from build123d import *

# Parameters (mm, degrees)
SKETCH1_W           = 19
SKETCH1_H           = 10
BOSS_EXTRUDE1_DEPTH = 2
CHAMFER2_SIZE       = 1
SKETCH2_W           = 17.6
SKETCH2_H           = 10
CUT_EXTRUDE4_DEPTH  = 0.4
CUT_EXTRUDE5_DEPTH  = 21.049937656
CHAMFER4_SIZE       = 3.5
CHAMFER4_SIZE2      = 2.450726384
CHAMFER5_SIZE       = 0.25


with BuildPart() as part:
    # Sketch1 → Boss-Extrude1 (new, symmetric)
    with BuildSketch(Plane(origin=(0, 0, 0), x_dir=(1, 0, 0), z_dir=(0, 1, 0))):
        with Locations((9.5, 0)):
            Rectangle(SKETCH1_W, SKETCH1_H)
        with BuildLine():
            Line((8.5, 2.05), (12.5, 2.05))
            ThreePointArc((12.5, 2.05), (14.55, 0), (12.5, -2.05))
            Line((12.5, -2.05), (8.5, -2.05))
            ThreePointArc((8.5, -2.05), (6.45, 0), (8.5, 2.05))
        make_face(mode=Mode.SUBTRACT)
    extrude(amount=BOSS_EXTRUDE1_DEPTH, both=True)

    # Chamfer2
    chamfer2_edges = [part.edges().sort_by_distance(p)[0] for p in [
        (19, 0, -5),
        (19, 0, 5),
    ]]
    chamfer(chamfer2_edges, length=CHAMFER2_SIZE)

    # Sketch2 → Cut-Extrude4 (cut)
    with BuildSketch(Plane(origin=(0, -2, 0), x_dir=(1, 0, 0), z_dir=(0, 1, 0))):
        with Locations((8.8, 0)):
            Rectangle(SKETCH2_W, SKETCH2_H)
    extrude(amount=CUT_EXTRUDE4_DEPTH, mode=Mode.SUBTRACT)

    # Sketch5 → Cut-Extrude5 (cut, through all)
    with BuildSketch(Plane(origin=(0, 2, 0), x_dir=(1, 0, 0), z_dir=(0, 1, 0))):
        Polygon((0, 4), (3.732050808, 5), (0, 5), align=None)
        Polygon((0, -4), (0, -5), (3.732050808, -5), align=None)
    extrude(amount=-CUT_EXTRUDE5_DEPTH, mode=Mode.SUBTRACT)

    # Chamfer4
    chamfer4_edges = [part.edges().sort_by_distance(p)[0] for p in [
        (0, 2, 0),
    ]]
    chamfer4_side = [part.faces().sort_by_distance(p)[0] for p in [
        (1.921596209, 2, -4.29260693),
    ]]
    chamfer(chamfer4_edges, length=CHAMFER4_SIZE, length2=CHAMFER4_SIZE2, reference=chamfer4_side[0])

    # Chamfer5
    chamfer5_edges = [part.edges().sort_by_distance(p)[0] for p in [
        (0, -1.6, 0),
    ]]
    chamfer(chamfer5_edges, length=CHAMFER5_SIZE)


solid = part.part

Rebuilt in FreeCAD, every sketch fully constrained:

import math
import FreeCAD as App
import Part
import Sketcher

V = App.Vector
Q = App.Units.Quantity


def edges_at(feature, points):
    """Names of the edges that pass closest to the given points."""
    edges = feature.Shape.Edges
    near = lambda p: min(range(len(edges)), key=lambda i: edges[i].distToShape(Part.Vertex(*p))[0])
    return sorted({f"Edge{near(p) + 1}" for p in points})

doc = App.newDocument("Part")
body = doc.addObject("PartDesign::Body", "Body")

# Sketch on XZ plane
sketch1 = body.newObject("Sketcher::SketchObject", "Sketch")
sketch1.AttachmentSupport = (doc.getObject("XZ_Plane"), [""])
sketch1.MapMode = "FlatFace"
sketch1.addGeometry(Part.LineSegment(V(0, -5, 0), V(0, 5, 0)), False)
sketch1.addGeometry(Part.LineSegment(V(0, 5, 0), V(19, 5, 0)), False)
sketch1.addGeometry(Part.LineSegment(V(19, 5, 0), V(19, -5, 0)), False)
sketch1.addGeometry(Part.LineSegment(V(19, -5, 0), V(0, -5, 0)), False)
sketch1.addGeometry(Part.ArcOfCircle(Part.Circle(V(8.5, 0, 0), V(0, 0, 1), 2.05), math.radians(90), math.radians(270)), False)
sketch1.addGeometry(Part.LineSegment(V(8.5, -2.05, 0), V(12.5, -2.05, 0)), False)
sketch1.addGeometry(Part.ArcOfCircle(Part.Circle(V(12.5, 0, 0), V(0, 0, 1), 2.05), math.radians(-90), math.radians(90)), False)
sketch1.addGeometry(Part.LineSegment(V(12.5, 2.05, 0), V(8.5, 2.05, 0)), False)
sketch1.addConstraint(Sketcher.Constraint("Coincident", 0, 2, 1, 1))
sketch1.addConstraint(Sketcher.Constraint("Coincident", 1, 2, 2, 1))
sketch1.addConstraint(Sketcher.Constraint("Coincident", 2, 2, 3, 1))
sketch1.addConstraint(Sketcher.Constraint("Coincident", 3, 2, 0, 1))
sketch1.addConstraint(Sketcher.Constraint("Tangent", 4, 2, 5, 1))
sketch1.addConstraint(Sketcher.Constraint("Tangent", 5, 2, 6, 1))
sketch1.addConstraint(Sketcher.Constraint("Tangent", 6, 2, 7, 1))
sketch1.addConstraint(Sketcher.Constraint("Tangent", 7, 2, 4, 1))
sketch1.addConstraint(Sketcher.Constraint("Vertical", 0))
sketch1.addConstraint(Sketcher.Constraint("Horizontal", 1))
sketch1.addConstraint(Sketcher.Constraint("Vertical", 2))
sketch1.addConstraint(Sketcher.Constraint("Horizontal", 3))
sketch1.addConstraint(Sketcher.Constraint("Horizontal", 5))
sketch1.addConstraint(Sketcher.Constraint("Horizontal", 7))
sketch1.addConstraint(Sketcher.Constraint("Symmetric", 0, 2, 3, 2, -1, 1))
sketch1.addConstraint(Sketcher.Constraint("PointOnObject", 4, 3, -1))
sketch1.addConstraint(Sketcher.Constraint("DistanceX", 1, 1, 1, 2, Q("19 mm")))
sketch1.addConstraint(Sketcher.Constraint("DistanceX", 5, 1, 5, 2, Q("4 mm")))
sketch1.addConstraint(Sketcher.Constraint("DistanceY", 0, 1, 0, 2, Q("10 mm")))
sketch1.addConstraint(Sketcher.Constraint("Radius", 4, Q("2.05 mm")))
sketch1.addConstraint(Sketcher.Constraint("DistanceX", -1, 1, 4, 3, Q("8.5 mm")))
pad1 = body.newObject("PartDesign::Pad", "Pad")
pad1.Profile = sketch1
pad1.Length = 4
pad1.Midplane = True
doc.recompute()

chamfer = body.newObject("PartDesign::Chamfer", "Chamfer")
chamfer.Base = (pad1, edges_at(pad1, [(19, 0, -5), (19, 0, 5)]))
chamfer.Size = 1

# Sketch on XZ plane
sketch2 = body.newObject("Sketcher::SketchObject", "Sketch001")
sketch2.AttachmentSupport = (doc.getObject("XZ_Plane"), [""])
sketch2.MapMode = "FlatFace"
sketch2.AttachmentOffset = App.Placement(V(0, 0, 2), App.Rotation())
sketch2.addGeometry(Part.LineSegment(V(0, -5, 0), V(0, 5, 0)), False)
sketch2.addGeometry(Part.LineSegment(V(0, 5, 0), V(17.6, 5, 0)), False)
sketch2.addGeometry(Part.LineSegment(V(17.6, 5, 0), V(17.6, -5, 0)), False)
sketch2.addGeometry(Part.LineSegment(V(17.6, -5, 0), V(0, -5, 0)), False)
sketch2.addConstraint(Sketcher.Constraint("Coincident", 0, 2, 1, 1))
sketch2.addConstraint(Sketcher.Constraint("Coincident", 1, 2, 2, 1))
sketch2.addConstraint(Sketcher.Constraint("Coincident", 2, 2, 3, 1))
sketch2.addConstraint(Sketcher.Constraint("Coincident", 3, 2, 0, 1))
sketch2.addConstraint(Sketcher.Constraint("Vertical", 0))
sketch2.addConstraint(Sketcher.Constraint("Horizontal", 1))
sketch2.addConstraint(Sketcher.Constraint("Vertical", 2))
sketch2.addConstraint(Sketcher.Constraint("Horizontal", 3))
sketch2.addConstraint(Sketcher.Constraint("Symmetric", 0, 2, 3, 2, -1, 1))
sketch2.addConstraint(Sketcher.Constraint("DistanceY", 0, 1, 0, 2, Q("10 mm")))
sketch2.addConstraint(Sketcher.Constraint("DistanceX", 1, 1, 1, 2, Q("17.6 mm")))
pocket1 = body.newObject("PartDesign::Pocket", "Pocket")
pocket1.Profile = sketch2
pocket1.Length = 0.4

# Sketch on XZ plane
sketch3 = body.newObject("Sketcher::SketchObject", "Sketch002")
sketch3.AttachmentSupport = (doc.getObject("XZ_Plane"), [""])
sketch3.MapMode = "FlatFace"
sketch3.AttachmentOffset = App.Placement(V(0, 0, -2), App.Rotation())
sketch3.addGeometry(Part.LineSegment(V(0, -4, 0), V(3.732051, -5, 0)), False)
sketch3.addGeometry(Part.LineSegment(V(3.732051, -5, 0), V(0, -5, 0)), False)
sketch3.addGeometry(Part.LineSegment(V(0, -5, 0), V(0, -4, 0)), False)
sketch3.addGeometry(Part.LineSegment(V(0, 4, 0), V(0, 5, 0)), False)
sketch3.addGeometry(Part.LineSegment(V(0, 5, 0), V(3.732051, 5, 0)), False)
sketch3.addGeometry(Part.LineSegment(V(3.732051, 5, 0), V(0, 4, 0)), False)
sketch3.addConstraint(Sketcher.Constraint("Coincident", 0, 2, 1, 1))
sketch3.addConstraint(Sketcher.Constraint("Coincident", 1, 2, 2, 1))
sketch3.addConstraint(Sketcher.Constraint("Coincident", 2, 2, 0, 1))
sketch3.addConstraint(Sketcher.Constraint("Coincident", 3, 2, 4, 1))
sketch3.addConstraint(Sketcher.Constraint("Coincident", 4, 2, 5, 1))
sketch3.addConstraint(Sketcher.Constraint("Coincident", 5, 2, 3, 1))
sketch3.addConstraint(Sketcher.Constraint("Horizontal", 1))
sketch3.addConstraint(Sketcher.Constraint("Vertical", 2))
sketch3.addConstraint(Sketcher.Constraint("Vertical", 3))
sketch3.addConstraint(Sketcher.Constraint("Horizontal", 4))
sketch3.addConstraint(Sketcher.Constraint("Symmetric", 1, 2, 3, 2, -1, 1))
sketch3.addConstraint(Sketcher.Constraint("Symmetric", 2, 2, 5, 2, -1))
sketch3.addConstraint(Sketcher.Constraint("Vertical", 0, 2, 4, 2))
sketch3.addConstraint(Sketcher.Constraint("DistanceY", 2, 1, 2, 2, Q("1 mm")))
sketch3.addConstraint(Sketcher.Constraint("Angle", 0, Q("-15 deg")))
sketch3.addConstraint(Sketcher.Constraint("DistanceY", 0, 2, -1, 1, Q("5 mm")))
pocket2 = body.newObject("PartDesign::Pocket", "Pocket001")
pocket2.Profile = sketch3
pocket2.Type = "ThroughAll"
pocket2.Reversed = True
doc.recompute()

chamfer2 = body.newObject("PartDesign::Chamfer", "Chamfer001")
chamfer2.Base = (pocket2, edges_at(pocket2, [(0, 2, 0)]))
chamfer2.ChamferType = "Two distances"
chamfer2.Size = 3.5
chamfer2.Size2 = 2.450726
doc.recompute()

chamfer3 = body.newObject("PartDesign::Chamfer", "Chamfer002")
chamfer3.Base = (chamfer2, edges_at(chamfer2, [(0, -1.6, 0)]))
chamfer3.Size = 0.25

doc.recompute()
